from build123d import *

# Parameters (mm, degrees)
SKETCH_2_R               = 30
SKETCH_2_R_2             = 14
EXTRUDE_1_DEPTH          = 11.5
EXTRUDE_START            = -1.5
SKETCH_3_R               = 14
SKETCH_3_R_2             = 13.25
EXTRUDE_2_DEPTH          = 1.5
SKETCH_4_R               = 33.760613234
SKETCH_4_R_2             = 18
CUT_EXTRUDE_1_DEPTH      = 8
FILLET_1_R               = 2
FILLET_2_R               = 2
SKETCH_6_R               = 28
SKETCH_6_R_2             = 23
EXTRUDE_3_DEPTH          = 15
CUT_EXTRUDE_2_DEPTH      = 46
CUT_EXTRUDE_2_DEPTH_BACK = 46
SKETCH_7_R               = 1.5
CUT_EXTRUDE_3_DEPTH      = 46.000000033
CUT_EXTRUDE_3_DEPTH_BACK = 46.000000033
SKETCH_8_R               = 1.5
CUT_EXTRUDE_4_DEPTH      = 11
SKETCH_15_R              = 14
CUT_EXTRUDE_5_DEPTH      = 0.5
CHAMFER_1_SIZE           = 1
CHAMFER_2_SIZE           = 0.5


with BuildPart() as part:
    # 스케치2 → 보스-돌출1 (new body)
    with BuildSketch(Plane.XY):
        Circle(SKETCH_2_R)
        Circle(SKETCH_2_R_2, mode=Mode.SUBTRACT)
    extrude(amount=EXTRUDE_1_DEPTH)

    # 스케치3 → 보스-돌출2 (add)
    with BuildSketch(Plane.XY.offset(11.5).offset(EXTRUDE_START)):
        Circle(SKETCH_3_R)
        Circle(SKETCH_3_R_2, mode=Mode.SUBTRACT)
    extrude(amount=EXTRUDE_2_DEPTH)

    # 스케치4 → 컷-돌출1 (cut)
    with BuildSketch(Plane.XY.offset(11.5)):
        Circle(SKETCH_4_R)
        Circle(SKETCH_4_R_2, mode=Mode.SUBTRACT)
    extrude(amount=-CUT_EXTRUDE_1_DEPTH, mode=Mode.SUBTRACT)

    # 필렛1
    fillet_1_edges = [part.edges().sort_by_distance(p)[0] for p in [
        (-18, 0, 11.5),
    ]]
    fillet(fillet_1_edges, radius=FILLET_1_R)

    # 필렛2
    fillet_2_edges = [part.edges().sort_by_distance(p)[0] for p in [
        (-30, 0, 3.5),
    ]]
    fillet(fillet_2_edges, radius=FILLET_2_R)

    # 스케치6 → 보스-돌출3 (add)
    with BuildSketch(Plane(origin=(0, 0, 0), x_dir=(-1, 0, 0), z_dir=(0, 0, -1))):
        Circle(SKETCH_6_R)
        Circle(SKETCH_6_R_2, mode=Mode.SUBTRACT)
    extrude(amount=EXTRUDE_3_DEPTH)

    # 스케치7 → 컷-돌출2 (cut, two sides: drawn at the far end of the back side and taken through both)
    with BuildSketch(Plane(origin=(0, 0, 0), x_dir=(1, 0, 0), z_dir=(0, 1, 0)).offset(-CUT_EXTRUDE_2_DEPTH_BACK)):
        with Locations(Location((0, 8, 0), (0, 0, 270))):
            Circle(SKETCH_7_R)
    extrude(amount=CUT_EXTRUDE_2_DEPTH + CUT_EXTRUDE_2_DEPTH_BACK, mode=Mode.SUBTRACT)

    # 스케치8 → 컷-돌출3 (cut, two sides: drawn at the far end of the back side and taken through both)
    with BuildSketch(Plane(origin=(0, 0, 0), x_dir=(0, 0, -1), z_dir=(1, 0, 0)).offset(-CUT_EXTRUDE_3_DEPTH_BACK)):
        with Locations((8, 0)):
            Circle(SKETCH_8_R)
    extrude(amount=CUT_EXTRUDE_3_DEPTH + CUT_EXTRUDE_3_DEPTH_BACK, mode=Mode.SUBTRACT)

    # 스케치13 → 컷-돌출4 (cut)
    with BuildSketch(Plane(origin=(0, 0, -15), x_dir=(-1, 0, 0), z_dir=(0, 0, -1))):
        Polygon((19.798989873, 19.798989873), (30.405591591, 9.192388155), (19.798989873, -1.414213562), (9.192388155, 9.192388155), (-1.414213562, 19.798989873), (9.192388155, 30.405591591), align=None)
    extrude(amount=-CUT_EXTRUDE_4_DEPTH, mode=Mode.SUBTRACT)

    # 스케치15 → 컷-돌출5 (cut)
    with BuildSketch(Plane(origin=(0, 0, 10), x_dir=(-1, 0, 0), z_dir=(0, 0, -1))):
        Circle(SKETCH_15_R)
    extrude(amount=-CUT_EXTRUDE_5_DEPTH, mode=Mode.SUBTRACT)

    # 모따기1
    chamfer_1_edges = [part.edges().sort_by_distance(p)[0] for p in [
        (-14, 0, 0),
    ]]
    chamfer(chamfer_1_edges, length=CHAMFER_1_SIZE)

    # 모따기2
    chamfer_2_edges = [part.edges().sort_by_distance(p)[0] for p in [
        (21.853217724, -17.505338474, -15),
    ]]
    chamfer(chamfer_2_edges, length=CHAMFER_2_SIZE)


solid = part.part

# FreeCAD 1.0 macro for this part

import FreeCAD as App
import Part
import Sketcher

V = App.Vector
Q = App.Units.Quantity


def edges_at(feature, points):
    """Names of the edges that pass closest to the given points."""
    edges = feature.Shape.Edges
    near = lambda p: min(range(len(edges)), key=lambda i: edges[i].distToShape(Part.Vertex(*p))[0])
    return sorted({f"Edge{near(p) + 1}" for p in points})

doc = App.newDocument("Part")
body = doc.addObject("PartDesign::Body", "Body")

# Sketch on XY plane
sketch1 = body.newObject("Sketcher::SketchObject", "Sketch")
sketch1.AttachmentSupport = (doc.getObject("XY_Plane"), [""])
sketch1.MapMode = "FlatFace"
sketch1.addGeometry([
    Part.Circle(V(0, 0, 0), V(0, 0, 1), 30),
    Part.Circle(V(0, 0, 0), V(0, 0, 1), 14),
], False)
sketch1.addConstraint([
    Sketcher.Constraint("Coincident", 0, 3, -1, 1),
    Sketcher.Constraint("Coincident", 1, 3, -1, 1),
    Sketcher.Constraint("Diameter", 0, Q("60 mm")),
    Sketcher.Constraint("Diameter", 1, Q("28 mm")),
])
pad1 = body.newObject("PartDesign::Pad", "Pad")
pad1.Profile = sketch1
pad1.Length = 11.5

# Sketch on XY plane
sketch2 = body.newObject("Sketcher::SketchObject", "Sketch001")
sketch2.AttachmentSupport = (doc.getObject("XY_Plane"), [""])
sketch2.MapMode = "FlatFace"
sketch2.AttachmentOffset = App.Placement(V(0, 0, 10), App.Rotation())
sketch2.addGeometry([
    Part.Circle(V(0, 0, 0), V(0, 0, 1), 14),
    Part.Circle(V(0, 0, 0), V(0, 0, 1), 13.25),
], False)
sketch2.addConstraint([
    Sketcher.Constraint("Coincident", 0, 3, -1, 1),
    Sketcher.Constraint("Coincident", 1, 3, -1, 1),
    Sketcher.Constraint("Diameter", 0, Q("28 mm")),
    Sketcher.Constraint("Diameter", 1, Q("26.5 mm")),
])
pad2 = body.newObject("PartDesign::Pad", "Pad001")
pad2.Profile = sketch2
pad2.Length = 1.5

# Sketch on XY plane
sketch3 = body.newObject("Sketcher::SketchObject", "Sketch002")
sketch3.AttachmentSupport = (doc.getObject("XY_Plane"), [""])
sketch3.MapMode = "FlatFace"
sketch3.AttachmentOffset = App.Placement(V(0, 0, 11.5), App.Rotation())
sketch3.addGeometry([
    Part.Circle(V(0, 0, 0), V(0, 0, 1), 33.760613),
    Part.Circle(V(0, 0, 0), V(0, 0, 1), 18),
], False)
sketch3.addConstraint([
    Sketcher.Constraint("Coincident", 0, 3, -1, 1),
    Sketcher.Constraint("Coincident", 1, 3, -1, 1),
    Sketcher.Constraint("Diameter", 1, Q("36 mm")),
    Sketcher.Constraint("Diameter", 0, Q("67.521226 mm")),
])
pocket1 = body.newObject("PartDesign::Pocket", "Pocket")
pocket1.Profile = sketch3
pocket1.Length = 8
doc.recompute()

fillet = body.newObject("PartDesign::Fillet", "Fillet")
fillet.Base = (pocket1, edges_at(pocket1, [(-18, 0, 11.5)]))
fillet.Radius = 2
doc.recompute()

fillet2 = body.newObject("PartDesign::Fillet", "Fillet001")
fillet2.Base = (fillet, edges_at(fillet, [(-30, 0, 3.5)]))
fillet2.Radius = 2

# Sketch on XY plane
sketch4 = body.newObject("Sketcher::SketchObject", "Sketch003")
sketch4.AttachmentSupport = (doc.getObject("XY_Plane"), [""])
sketch4.MapMode = "FlatFace"
sketch4.addGeometry([
    Part.Circle(V(0, 0, 0), V(0, 0, 1), 28),
    Part.Circle(V(0, 0, 0), V(0, 0, 1), 23),
], False)
sketch4.addConstraint([
    Sketcher.Constraint("Coincident", 0, 3, -1, 1),
    Sketcher.Constraint("Coincident", 1, 3, -1, 1),
    Sketcher.Constraint("Diameter", 0, Q("56 mm")),
    Sketcher.Constraint("Diameter", 1, Q("46 mm")),
])
pad3 = body.newObject("PartDesign::Pad", "Pad002")
pad3.Profile = sketch4
pad3.Length = 15
pad3.Reversed = True

# Sketch on XZ plane
sketch5 = body.newObject("Sketcher::SketchObject", "Sketch004")
sketch5.AttachmentSupport = (doc.getObject("XZ_Plane"), [""])
sketch5.MapMode = "FlatFace"
sketch5.addGeometry(Part.Circle(V(0, -8, 0), V(0, 0, 1), 1.5), False)
sketch5.addConstraint([
    Sketcher.Constraint("PointOnObject", 0, 3, -2),
    Sketcher.Constraint("Diameter", 0, Q("3 mm")),
    Sketcher.Constraint("DistanceY", 0, 3, -1, 1, Q("8 mm")),
])
pocket2 = body.newObject("PartDesign::Pocket", "Pocket001")
pocket2.Profile = sketch5
pocket2.Type = "ThroughAll"
pocket2.Midplane = True

# Sketch on YZ plane
sketch6 = body.newObject("Sketcher::SketchObject", "Sketch005")
sketch6.AttachmentSupport = (doc.getObject("YZ_Plane"), [""])
sketch6.MapMode = "FlatFace"
sketch6.addGeometry(Part.Circle(V(0, -8, 0), V(0, 0, 1), 1.5), False)
sketch6.addConstraint([
    Sketcher.Constraint("PointOnObject", 0, 3, -2),
    Sketcher.Constraint("Diameter", 0, Q("3 mm")),
    Sketcher.Constraint("DistanceY", 0, 3, -1, 1, Q("8 mm")),
])
pocket3 = body.newObject("PartDesign::Pocket", "Pocket002")
pocket3.Profile = sketch6
pocket3.Type = "ThroughAll"
pocket3.Midplane = True

# Sketch on XY plane
sketch7 = body.newObject("Sketcher::SketchObject", "Sketch006")
sketch7.AttachmentSupport = (doc.getObject("XY_Plane"), [""])
sketch7.MapMode = "FlatFace"
sketch7.AttachmentOffset = App.Placement(V(0, 0, -15), App.Rotation())
sketch7.addGeometry([
    Part.LineSegment(V(-30.405592, 9.192388, 0), V(-9.192388, 30.405592, 0)),  # 0
    Part.LineSegment(V(-9.192388, 30.405592, 0), V(1.414214, 19.79899, 0)),  # 1
    Part.LineSegment(V(1.414214, 19.79899, 0), V(-9.192388, 9.192388, 0)),  # 2
    Part.LineSegment(V(-9.192388, 9.192388, 0), V(-19.79899, -1.414214, 0)),  # 3
    Part.LineSegment(V(-19.79899, -1.414214, 0), V(-30.405592, 9.192388, 0)),  # 4
], False)
sketch7.addConstraint([
    Sketcher.Constraint("Coincident", 0, 2, 1, 1),
    Sketcher.Constraint("Coincident", 1, 2, 2, 1),
    Sketcher.Constraint("Coincident", 2, 2, 3, 1),
    Sketcher.Constraint("Coincident", 3, 2, 4, 1),
    Sketcher.Constraint("Coincident", 4, 2, 0, 1),
    Sketcher.Constraint("Perpendicular", 0, 1),
    Sketcher.Constraint("Perpendicular", 1, 2),
    Sketcher.Constraint("Parallel", 2, 3),
    Sketcher.Constraint("Perpendicular", 3, 4),
    Sketcher.Constraint("Horizontal", 2, 2, 4, 2),
    Sketcher.Constraint("Vertical", 0, 2, 2, 2),
    Sketcher.Constraint("Equal", 1, 2),
    Sketcher.Constraint("Distance", 0, Q("30 mm")),
    Sketcher.Constraint("DistanceX", 0, 2, -1, 1, Q("9.192388 mm")),
    Sketcher.Constraint("DistanceY", -1, 1, 0, 2, Q("30.405592 mm")),
])
pocket4 = body.newObject("PartDesign::Pocket", "Pocket003")
pocket4.Profile = sketch7
pocket4.Length = 11
pocket4.Reversed = True

# Sketch on XY plane
sketch8 = body.newObject("Sketcher::SketchObject", "Sketch007")
sketch8.AttachmentSupport = (doc.getObject("XY_Plane"), [""])
sketch8.MapMode = "FlatFace"
sketch8.AttachmentOffset = App.Placement(V(0, 0, 10), App.Rotation())
sketch8.addGeometry(Part.Circle(V(0, 0, 0), V(0, 0, 1), 14), False)
sketch8.addConstraint([
    Sketcher.Constraint("Coincident", 0, 3, -1, 1),
    Sketcher.Constraint("Diameter", 0, Q("28 mm")),
])
pocket5 = body.newObject("PartDesign::Pocket", "Pocket004")
pocket5.Profile = sketch8
pocket5.Length = 0.5
pocket5.Reversed = True
doc.recompute()

chamfer = body.newObject("PartDesign::Chamfer", "Chamfer")
chamfer.Base = (pocket5, edges_at(pocket5, [(-14, 0, 0)]))
chamfer.Size = 1
doc.recompute()

chamfer2 = body.newObject("PartDesign::Chamfer", "Chamfer001")
chamfer2.Base = (chamfer, edges_at(chamfer, [(21.853, -17.505, -15)]))
chamfer2.Size = 0.5

doc.recompute()
